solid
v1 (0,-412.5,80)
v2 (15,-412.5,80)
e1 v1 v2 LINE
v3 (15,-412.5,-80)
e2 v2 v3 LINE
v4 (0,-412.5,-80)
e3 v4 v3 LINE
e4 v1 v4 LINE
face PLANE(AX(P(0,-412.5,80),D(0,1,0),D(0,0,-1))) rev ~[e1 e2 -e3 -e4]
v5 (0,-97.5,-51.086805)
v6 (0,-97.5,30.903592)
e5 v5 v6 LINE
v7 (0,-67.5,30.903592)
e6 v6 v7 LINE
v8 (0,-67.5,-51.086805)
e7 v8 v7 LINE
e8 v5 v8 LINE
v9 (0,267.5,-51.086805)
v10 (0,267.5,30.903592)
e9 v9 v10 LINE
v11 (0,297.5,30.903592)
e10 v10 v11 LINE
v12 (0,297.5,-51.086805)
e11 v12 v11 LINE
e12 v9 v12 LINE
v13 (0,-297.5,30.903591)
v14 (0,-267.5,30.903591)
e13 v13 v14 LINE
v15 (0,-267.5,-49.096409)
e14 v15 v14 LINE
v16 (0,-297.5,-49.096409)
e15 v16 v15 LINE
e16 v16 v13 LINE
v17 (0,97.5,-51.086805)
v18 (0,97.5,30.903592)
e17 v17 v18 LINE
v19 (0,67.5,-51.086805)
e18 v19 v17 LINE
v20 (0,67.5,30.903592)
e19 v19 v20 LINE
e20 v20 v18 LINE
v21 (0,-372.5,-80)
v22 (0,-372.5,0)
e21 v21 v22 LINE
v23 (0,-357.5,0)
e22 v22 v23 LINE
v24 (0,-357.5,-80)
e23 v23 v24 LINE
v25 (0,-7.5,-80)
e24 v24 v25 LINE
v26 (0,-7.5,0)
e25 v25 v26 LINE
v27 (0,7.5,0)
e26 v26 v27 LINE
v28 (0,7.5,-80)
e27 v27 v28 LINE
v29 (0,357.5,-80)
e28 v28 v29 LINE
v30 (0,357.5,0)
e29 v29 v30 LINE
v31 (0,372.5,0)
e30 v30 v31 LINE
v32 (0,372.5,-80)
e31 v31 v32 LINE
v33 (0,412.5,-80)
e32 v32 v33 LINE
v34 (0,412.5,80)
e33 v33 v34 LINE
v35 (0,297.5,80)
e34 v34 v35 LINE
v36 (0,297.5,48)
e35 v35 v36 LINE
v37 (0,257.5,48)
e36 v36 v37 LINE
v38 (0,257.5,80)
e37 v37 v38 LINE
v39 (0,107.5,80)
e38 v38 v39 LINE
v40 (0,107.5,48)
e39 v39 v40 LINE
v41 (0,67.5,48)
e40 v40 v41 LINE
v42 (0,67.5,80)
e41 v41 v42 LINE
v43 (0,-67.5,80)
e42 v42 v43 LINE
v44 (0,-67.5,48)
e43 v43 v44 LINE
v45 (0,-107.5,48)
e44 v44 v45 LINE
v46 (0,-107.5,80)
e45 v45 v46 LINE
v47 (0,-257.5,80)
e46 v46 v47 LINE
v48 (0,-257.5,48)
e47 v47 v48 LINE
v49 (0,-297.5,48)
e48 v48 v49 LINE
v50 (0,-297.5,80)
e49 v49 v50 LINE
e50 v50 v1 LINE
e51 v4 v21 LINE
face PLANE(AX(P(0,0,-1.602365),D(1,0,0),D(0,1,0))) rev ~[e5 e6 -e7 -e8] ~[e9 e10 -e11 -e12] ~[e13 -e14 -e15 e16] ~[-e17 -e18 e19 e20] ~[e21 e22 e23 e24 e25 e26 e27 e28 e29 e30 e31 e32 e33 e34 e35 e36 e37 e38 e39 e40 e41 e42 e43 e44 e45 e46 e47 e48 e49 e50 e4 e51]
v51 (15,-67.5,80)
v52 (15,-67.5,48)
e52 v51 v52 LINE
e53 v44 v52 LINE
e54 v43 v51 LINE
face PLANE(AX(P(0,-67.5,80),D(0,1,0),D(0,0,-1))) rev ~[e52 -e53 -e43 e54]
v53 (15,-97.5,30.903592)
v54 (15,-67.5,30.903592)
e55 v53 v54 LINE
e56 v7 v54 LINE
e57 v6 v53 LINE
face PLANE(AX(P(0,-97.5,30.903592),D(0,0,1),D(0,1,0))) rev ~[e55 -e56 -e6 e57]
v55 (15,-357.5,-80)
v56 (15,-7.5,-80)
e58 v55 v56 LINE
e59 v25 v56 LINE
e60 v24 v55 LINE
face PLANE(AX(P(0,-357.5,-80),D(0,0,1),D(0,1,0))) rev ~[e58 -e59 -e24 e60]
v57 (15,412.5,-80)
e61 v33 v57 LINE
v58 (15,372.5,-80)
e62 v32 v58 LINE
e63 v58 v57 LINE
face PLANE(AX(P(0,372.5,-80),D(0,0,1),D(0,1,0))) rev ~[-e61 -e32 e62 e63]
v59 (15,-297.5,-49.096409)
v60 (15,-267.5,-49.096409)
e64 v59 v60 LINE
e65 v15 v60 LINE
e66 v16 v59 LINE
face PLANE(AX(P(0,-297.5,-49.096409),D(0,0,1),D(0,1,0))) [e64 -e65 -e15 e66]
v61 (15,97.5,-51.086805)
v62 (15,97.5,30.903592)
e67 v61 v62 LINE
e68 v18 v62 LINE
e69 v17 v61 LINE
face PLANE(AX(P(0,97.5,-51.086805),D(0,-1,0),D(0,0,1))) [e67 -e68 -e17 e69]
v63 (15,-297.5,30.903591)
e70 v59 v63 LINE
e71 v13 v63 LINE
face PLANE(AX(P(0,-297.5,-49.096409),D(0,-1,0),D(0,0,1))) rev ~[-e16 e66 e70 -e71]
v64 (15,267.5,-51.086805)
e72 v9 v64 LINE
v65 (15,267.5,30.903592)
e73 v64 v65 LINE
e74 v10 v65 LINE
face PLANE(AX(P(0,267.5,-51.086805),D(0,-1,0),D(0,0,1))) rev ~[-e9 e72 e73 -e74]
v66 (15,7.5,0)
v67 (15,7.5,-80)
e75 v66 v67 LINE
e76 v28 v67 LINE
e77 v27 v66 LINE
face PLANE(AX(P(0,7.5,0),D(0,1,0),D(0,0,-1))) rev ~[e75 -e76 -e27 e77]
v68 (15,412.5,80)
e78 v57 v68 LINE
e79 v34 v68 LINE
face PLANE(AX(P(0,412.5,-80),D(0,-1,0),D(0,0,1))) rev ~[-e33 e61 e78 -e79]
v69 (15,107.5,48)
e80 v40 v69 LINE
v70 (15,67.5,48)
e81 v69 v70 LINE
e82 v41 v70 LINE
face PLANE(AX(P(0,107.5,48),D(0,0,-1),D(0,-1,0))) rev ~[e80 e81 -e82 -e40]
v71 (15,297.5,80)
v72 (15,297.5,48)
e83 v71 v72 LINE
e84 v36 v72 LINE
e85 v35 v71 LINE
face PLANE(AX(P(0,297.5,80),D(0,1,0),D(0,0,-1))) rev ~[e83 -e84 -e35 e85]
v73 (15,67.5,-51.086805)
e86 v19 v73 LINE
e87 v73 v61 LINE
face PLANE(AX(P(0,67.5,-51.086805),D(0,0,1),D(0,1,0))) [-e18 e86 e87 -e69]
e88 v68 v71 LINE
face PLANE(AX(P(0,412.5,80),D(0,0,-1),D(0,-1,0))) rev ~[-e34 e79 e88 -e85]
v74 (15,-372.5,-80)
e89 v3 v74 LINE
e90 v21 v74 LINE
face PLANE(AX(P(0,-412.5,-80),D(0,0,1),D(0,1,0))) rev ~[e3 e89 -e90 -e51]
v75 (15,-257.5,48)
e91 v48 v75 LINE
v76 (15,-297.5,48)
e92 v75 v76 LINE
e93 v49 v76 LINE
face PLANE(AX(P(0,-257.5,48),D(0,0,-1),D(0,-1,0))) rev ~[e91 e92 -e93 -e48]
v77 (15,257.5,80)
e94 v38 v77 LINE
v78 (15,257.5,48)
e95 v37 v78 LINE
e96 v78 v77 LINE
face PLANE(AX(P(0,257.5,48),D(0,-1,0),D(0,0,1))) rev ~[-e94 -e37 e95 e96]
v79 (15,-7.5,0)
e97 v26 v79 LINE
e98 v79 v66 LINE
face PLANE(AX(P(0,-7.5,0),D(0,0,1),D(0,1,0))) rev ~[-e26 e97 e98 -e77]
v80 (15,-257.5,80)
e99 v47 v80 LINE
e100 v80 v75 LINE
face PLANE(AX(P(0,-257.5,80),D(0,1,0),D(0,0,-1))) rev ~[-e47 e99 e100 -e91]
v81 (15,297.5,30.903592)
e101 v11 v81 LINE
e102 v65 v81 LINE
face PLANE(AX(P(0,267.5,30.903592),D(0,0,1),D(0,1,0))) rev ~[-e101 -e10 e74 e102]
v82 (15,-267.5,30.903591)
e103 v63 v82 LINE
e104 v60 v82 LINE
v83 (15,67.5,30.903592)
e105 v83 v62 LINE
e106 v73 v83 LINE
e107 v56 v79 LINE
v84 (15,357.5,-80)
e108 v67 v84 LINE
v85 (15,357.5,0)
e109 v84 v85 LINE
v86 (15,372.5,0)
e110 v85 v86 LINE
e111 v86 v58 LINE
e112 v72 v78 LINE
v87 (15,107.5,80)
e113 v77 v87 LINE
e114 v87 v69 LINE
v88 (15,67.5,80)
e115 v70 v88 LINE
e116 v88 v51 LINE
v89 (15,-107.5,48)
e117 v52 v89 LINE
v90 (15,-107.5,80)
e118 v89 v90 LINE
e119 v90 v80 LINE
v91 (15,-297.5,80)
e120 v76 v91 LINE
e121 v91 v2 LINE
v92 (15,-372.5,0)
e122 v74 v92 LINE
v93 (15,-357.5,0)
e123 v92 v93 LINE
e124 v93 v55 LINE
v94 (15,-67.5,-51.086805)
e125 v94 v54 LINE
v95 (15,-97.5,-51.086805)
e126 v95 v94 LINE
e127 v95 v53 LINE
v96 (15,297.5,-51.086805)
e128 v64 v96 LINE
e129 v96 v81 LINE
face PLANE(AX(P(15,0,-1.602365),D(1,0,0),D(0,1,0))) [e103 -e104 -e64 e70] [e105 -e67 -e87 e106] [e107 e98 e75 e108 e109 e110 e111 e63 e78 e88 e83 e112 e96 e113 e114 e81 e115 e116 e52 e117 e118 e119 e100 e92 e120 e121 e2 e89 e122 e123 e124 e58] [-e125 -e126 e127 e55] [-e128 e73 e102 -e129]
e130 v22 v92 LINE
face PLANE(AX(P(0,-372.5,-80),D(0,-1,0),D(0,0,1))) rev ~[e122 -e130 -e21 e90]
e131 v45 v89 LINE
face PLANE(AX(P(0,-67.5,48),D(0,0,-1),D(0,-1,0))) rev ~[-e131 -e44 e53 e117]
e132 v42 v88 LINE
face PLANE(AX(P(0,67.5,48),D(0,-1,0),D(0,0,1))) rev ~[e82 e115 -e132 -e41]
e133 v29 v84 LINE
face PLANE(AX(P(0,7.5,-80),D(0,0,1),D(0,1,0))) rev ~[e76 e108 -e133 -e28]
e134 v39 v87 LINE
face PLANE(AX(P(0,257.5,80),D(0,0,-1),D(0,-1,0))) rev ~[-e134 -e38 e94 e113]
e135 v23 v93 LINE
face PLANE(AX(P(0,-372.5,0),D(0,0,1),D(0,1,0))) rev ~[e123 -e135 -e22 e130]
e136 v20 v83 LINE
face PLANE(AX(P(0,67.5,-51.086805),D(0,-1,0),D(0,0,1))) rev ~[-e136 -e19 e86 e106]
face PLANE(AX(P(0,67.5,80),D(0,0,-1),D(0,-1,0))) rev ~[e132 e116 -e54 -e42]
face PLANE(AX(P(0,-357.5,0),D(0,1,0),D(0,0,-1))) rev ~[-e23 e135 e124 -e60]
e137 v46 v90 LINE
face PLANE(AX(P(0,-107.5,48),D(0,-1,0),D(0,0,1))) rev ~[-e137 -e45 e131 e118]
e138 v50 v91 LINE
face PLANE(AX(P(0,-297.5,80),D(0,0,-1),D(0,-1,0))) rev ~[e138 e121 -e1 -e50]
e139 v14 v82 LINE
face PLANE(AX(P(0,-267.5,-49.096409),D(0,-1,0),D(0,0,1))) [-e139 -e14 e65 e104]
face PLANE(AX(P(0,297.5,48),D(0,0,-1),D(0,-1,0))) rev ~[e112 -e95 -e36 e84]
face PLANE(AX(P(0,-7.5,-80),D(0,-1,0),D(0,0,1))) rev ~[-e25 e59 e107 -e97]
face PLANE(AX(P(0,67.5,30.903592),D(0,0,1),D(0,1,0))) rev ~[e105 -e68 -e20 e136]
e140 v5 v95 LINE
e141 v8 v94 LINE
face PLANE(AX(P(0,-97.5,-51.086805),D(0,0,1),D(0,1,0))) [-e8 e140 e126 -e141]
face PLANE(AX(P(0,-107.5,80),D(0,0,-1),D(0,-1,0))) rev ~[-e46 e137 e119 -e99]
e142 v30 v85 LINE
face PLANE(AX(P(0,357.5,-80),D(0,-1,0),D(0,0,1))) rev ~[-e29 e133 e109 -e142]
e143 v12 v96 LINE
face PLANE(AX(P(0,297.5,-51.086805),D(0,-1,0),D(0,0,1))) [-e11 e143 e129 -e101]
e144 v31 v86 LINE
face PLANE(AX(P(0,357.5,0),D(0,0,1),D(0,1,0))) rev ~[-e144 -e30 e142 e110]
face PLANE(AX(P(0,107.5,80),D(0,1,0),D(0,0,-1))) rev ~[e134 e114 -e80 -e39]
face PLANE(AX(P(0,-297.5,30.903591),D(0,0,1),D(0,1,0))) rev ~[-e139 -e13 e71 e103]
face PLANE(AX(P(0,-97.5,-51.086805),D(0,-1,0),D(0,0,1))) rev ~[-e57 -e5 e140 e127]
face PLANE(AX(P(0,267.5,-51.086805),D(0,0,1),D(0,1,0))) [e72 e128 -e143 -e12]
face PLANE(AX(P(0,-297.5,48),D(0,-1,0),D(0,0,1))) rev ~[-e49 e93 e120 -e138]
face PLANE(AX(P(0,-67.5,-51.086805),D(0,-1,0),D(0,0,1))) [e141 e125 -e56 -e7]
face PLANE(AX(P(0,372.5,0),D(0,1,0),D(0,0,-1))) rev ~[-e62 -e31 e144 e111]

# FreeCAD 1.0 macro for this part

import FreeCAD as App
import Part
import Sketcher
Q = App.Units.Quantity

doc = App.newDocument("Part")
body = doc.addObject("PartDesign::Body", "Body")

# Sketch on YZ plane
sketch1 = body.newObject("Sketcher::SketchObject", "Sketch")
sketch1.AttachmentSupport = (doc.getObject("YZ_Plane"), [""])
sketch1.MapMode = "FlatFace"
sketch1.addGeometry([
    Part.LineSegment(App.Vector(-298, 80, 0), App.Vector(-412, 80, 0)),  # 0
    Part.LineSegment(App.Vector(-412, 80, 0), App.Vector(-412, -80, 0)),  # 1
    Part.LineSegment(App.Vector(-412, -80, 0), App.Vector(-372, -80, 0)),  # 2
    Part.LineSegment(App.Vector(-372, -80, 0), App.Vector(-372, 0, 0)),  # 3
    Part.LineSegment(App.Vector(-372, 0, 0), App.Vector(-358, 0, 0)),  # 4
    Part.LineSegment(App.Vector(-358, 0, 0), App.Vector(-358, -80, 0)),  # 5
    Part.LineSegment(App.Vector(-358, -80, 0), App.Vector(-8, -80, 0)),  # 6
    Part.LineSegment(App.Vector(-8, -80, 0), App.Vector(-8, 0, 0)),  # 7
    Part.LineSegment(App.Vector(-8, 0, 0), App.Vector(8, 0, 0)),  # 8
    Part.LineSegment(App.Vector(8, 0, 0), App.Vector(8, -80, 0)),  # 9
    Part.LineSegment(App.Vector(8, -80, 0), App.Vector(358, -80, 0)),  # 10
    Part.LineSegment(App.Vector(358, -80, 0), App.Vector(358, 0, 0)),  # 11
    Part.LineSegment(App.Vector(358, 0, 0), App.Vector(372, 0, 0)),  # 12
    Part.LineSegment(App.Vector(372, 0, 0), App.Vector(372, -80, 0)),  # 13
    Part.LineSegment(App.Vector(372, -80, 0), App.Vector(412, -80, 0)),  # 14
    Part.LineSegment(App.Vector(412, -80, 0), App.Vector(412, 80, 0)),  # 15
    Part.LineSegment(App.Vector(412, 80, 0), App.Vector(298, 80, 0)),  # 16
    Part.LineSegment(App.Vector(298, 80, 0), App.Vector(298, 48, 0)),  # 17
    Part.LineSegment(App.Vector(298, 48, 0), App.Vector(258, 48, 0)),  # 18
    Part.LineSegment(App.Vector(258, 48, 0), App.Vector(258, 80, 0)),  # 19
    Part.LineSegment(App.Vector(258, 80, 0), App.Vector(108, 80, 0)),  # 20
    Part.LineSegment(App.Vector(108, 80, 0), App.Vector(108, 48, 0)),  # 21
    Part.LineSegment(App.Vector(108, 48, 0), App.Vector(68, 48, 0)),  # 22
    Part.LineSegment(App.Vector(68, 48, 0), App.Vector(68, 80, 0)),  # 23
    Part.LineSegment(App.Vector(68, 80, 0), App.Vector(-68, 80, 0)),  # 24
    Part.LineSegment(App.Vector(-68, 80, 0), App.Vector(-68, 48, 0)),  # 25
    Part.LineSegment(App.Vector(-68, 48, 0), App.Vector(-108, 48, 0)),  # 26
    Part.LineSegment(App.Vector(-108, 48, 0), App.Vector(-108, 80, 0)),  # 27
    Part.LineSegment(App.Vector(-108, 80, 0), App.Vector(-258, 80, 0)),  # 28
    Part.LineSegment(App.Vector(-258, 80, 0), App.Vector(-258, 48, 0)),  # 29
    Part.LineSegment(App.Vector(-258, 48, 0), App.Vector(-298, 48, 0)),  # 30
    Part.LineSegment(App.Vector(-298, 48, 0), App.Vector(-298, 80, 0)),  # 31
    Part.LineSegment(App.Vector(-268, -49, 0), App.Vector(-298, -49, 0)),  # 32
    Part.LineSegment(App.Vector(-298, -49, 0), App.Vector(-298, 31, 0)),  # 33
    Part.LineSegment(App.Vector(-298, 31, 0), App.Vector(-268, 31, 0)),  # 34
    Part.LineSegment(App.Vector(-268, 31, 0), App.Vector(-268, -49, 0)),  # 35
    Part.LineSegment(App.Vector(-68, -51, 0), App.Vector(-98, -51, 0)),  # 36
    Part.LineSegment(App.Vector(-98, -51, 0), App.Vector(-98, 31, 0)),  # 37
    Part.LineSegment(App.Vector(-98, 31, 0), App.Vector(-68, 31, 0)),  # 38
    Part.LineSegment(App.Vector(-68, 31, 0), App.Vector(-68, -51, 0)),  # 39
    Part.LineSegment(App.Vector(98, -51, 0), App.Vector(68, -51, 0)),  # 40
    Part.LineSegment(App.Vector(68, -51, 0), App.Vector(68, 31, 0)),  # 41
    Part.LineSegment(App.Vector(68, 31, 0), App.Vector(98, 31, 0)),  # 42
    Part.LineSegment(App.Vector(98, 31, 0), App.Vector(98, -51, 0)),  # 43
    Part.LineSegment(App.Vector(298, -51, 0), App.Vector(268, -51, 0)),  # 44
    Part.LineSegment(App.Vector(268, -51, 0), App.Vector(268, 31, 0)),  # 45
    Part.LineSegment(App.Vector(268, 31, 0), App.Vector(298, 31, 0)),  # 46
    Part.LineSegment(App.Vector(298, 31, 0), App.Vector(298, -51, 0)),  # 47
], False)
sketch1.addConstraint([
    Sketcher.Constraint("Coincident", 0, 2, 1, 1),
    Sketcher.Constraint("Coincident", 1, 2, 2, 1),
    Sketcher.Constraint("Coincident", 2, 2, 3, 1),
    Sketcher.Constraint("Coincident", 3, 2, 4, 1),
    Sketcher.Constraint("Coincident", 4, 2, 5, 1),
    Sketcher.Constraint("Coincident", 5, 2, 6, 1),
    Sketcher.Constraint("Coincident", 6, 2, 7, 1),
    Sketcher.Constraint("Coincident", 7, 2, 8, 1),
    Sketcher.Constraint("Coincident", 8, 2, 9, 1),
    Sketcher.Constraint("Coincident", 9, 2, 10, 1),
    Sketcher.Constraint("Coincident", 10, 2, 11, 1),
    Sketcher.Constraint("Coincident", 11, 2, 12, 1),
    Sketcher.Constraint("Coincident", 12, 2, 13, 1),
    Sketcher.Constraint("Coincident", 13, 2, 14, 1),
    Sketcher.Constraint("Coincident", 14, 2, 15, 1),
    Sketcher.Constraint("Coincident", 15, 2, 16, 1),
    Sketcher.Constraint("Coincident", 16, 2, 17, 1),
    Sketcher.Constraint("Coincident", 17, 2, 18, 1),
    Sketcher.Constraint("Coincident", 18, 2, 19, 1),
    Sketcher.Constraint("Coincident", 19, 2, 20, 1),
    Sketcher.Constraint("Coincident", 20, 2, 21, 1),
    Sketcher.Constraint("Coincident", 21, 2, 22, 1),
    Sketcher.Constraint("Coincident", 22, 2, 23, 1),
    Sketcher.Constraint("Coincident", 23, 2, 24, 1),
    Sketcher.Constraint("Coincident", 24, 2, 25, 1),
    Sketcher.Constraint("Coincident", 25, 2, 26, 1),
    Sketcher.Constraint("Coincident", 26, 2, 27, 1),
    Sketcher.Constraint("Coincident", 27, 2, 28, 1),
    Sketcher.Constraint("Coincident", 28, 2, 29, 1),
    Sketcher.Constraint("Coincident", 29, 2, 30, 1),
    Sketcher.Constraint("Coincident", 30, 2, 31, 1),
    Sketcher.Constraint("Coincident", 31, 2, 0, 1),
    Sketcher.Constraint("Coincident", 32, 2, 33, 1),
    Sketcher.Constraint("Coincident", 33, 2, 34, 1),
    Sketcher.Constraint("Coincident", 34, 2, 35, 1),
    Sketcher.Constraint("Coincident", 35, 2, 32, 1),
    Sketcher.Constraint("Coincident", 36, 2, 37, 1),
    Sketcher.Constraint("Coincident", 37, 2, 38, 1),
    Sketcher.Constraint("Coincident", 38, 2, 39, 1),
    Sketcher.Constraint("Coincident", 39, 2, 36, 1),
    Sketcher.Constraint("Coincident", 40, 2, 41, 1),
    Sketcher.Constraint("Coincident", 41, 2, 42, 1),
    Sketcher.Constraint("Coincident", 42, 2, 43, 1),
    Sketcher.Constraint("Coincident", 43, 2, 40, 1),
    Sketcher.Constraint("Coincident", 44, 2, 45, 1),
    Sketcher.Constraint("Coincident", 45, 2, 46, 1),
    Sketcher.Constraint("Coincident", 46, 2, 47, 1),
    Sketcher.Constraint("Coincident", 47, 2, 44, 1),
    Sketcher.Constraint("Horizontal", 0),
    Sketcher.Constraint("Vertical", 1),
    Sketcher.Constraint("Horizontal", 2),
    Sketcher.Constraint("Vertical", 3),
    Sketcher.Constraint("Horizontal", 4),
    Sketcher.Constraint("Vertical", 5),
    Sketcher.Constraint("Horizontal", 6),
    Sketcher.Constraint("Vertical", 7),
    Sketcher.Constraint("Horizontal", 8),
    Sketcher.Constraint("Vertical", 9),
    Sketcher.Constraint("Horizontal", 10),
    Sketcher.Constraint("Vertical", 11),
    Sketcher.Constraint("Horizontal", 12),
    Sketcher.Constraint("Vertical", 13),
    Sketcher.Constraint("Horizontal", 14),
    Sketcher.Constraint("Vertical", 15),
    Sketcher.Constraint("Horizontal", 16),
    Sketcher.Constraint("Vertical", 17),
    Sketcher.Constraint("Horizontal", 18),
    Sketcher.Constraint("Vertical", 19),
    Sketcher.Constraint("Horizontal", 20),
    Sketcher.Constraint("Vertical", 21),
    Sketcher.Constraint("Horizontal", 22),
    Sketcher.Constraint("Vertical", 23),
    Sketcher.Constraint("Horizontal", 24),
    Sketcher.Constraint("Vertical", 25),
    Sketcher.Constraint("Horizontal", 26),
    Sketcher.Constraint("Vertical", 27),
    Sketcher.Constraint("Horizontal", 28),
    Sketcher.Constraint("Vertical", 29),
    Sketcher.Constraint("Horizontal", 30),
    Sketcher.Constraint("Vertical", 31),
    Sketcher.Constraint("Horizontal", 32),
    Sketcher.Constraint("Vertical", 33),
    Sketcher.Constraint("Horizontal", 34),
    Sketcher.Constraint("Vertical", 35),
    Sketcher.Constraint("Horizontal", 36),
    Sketcher.Constraint("Vertical", 37),
    Sketcher.Constraint("Horizontal", 38),
    Sketcher.Constraint("Vertical", 39),
    Sketcher.Constraint("Horizontal", 40),
    Sketcher.Constraint("Vertical", 41),
    Sketcher.Constraint("Horizontal", 42),
    Sketcher.Constraint("Vertical", 43),
    Sketcher.Constraint("Horizontal", 44),
    Sketcher.Constraint("Vertical", 45),
    Sketcher.Constraint("Horizontal", 46),
    Sketcher.Constraint("Vertical", 47),
    Sketcher.Constraint("Symmetric", 7, 2, 8, 2, -1, 1),
    Sketcher.Constraint("Symmetric", 4, 2, 11, 2, -1, 1),
    Sketcher.Constraint("Symmetric", 0, 2, 14, 2, -1, 1),
    Sketcher.Constraint("Symmetric", 3, 2, 12, 2, -2),
    Sketcher.Constraint("Symmetric", 22, 2, 25, 2, -2),
    Sketcher.Constraint("Symmetric", 20, 2, 27, 2, -2),
    Sketcher.Constraint("Symmetric", 18, 2, 29, 2, -2),
    Sketcher.Constraint("Symmetric", 16, 2, 31, 2, -2),
    Sketcher.Constraint("Symmetric", 39, 2, 40, 2, -2),
    Sketcher.Constraint("Symmetric", 37, 2, 42, 2, -2),
    Sketcher.Constraint("Symmetric", 34, 2, 45, 2, -2),
    Sketcher.Constraint("Horizontal", 2, 2, 5, 2),
    Sketcher.Constraint("Horizontal", 6, 2, 9, 2),
    Sketcher.Constraint("Horizontal", 10, 2, 13, 2),
    Sketcher.Constraint("Horizontal", 16, 2, 19, 2),
    Sketcher.Constraint("Horizontal", 18, 2, 21, 2),
    Sketcher.Constraint("Horizontal", 20, 2, 23, 2),
    Sketcher.Constraint("Horizontal", 34, 2, 37, 2),
    Sketcher.Constraint("Horizontal", 43, 2, 44, 2),
    Sketcher.Constraint("Vertical", 31, 2, 32, 2),
    Sketcher.Constraint("Vertical", 25, 2, 38, 2),
    Sketcher.Constraint("Vertical", 17, 2, 46, 2),
    Sketcher.Constraint("Equal", 4, 8),
    Sketcher.Constraint("Equal", 14, 18),
    Sketcher.Constraint("Equal", 18, 22),
    Sketcher.Constraint("Equal", 34, 36),
    Sketcher.Constraint("Equal", 13, 33),
    Sketcher.Constraint("DistanceX", 0, 2, 0, 1, Q("115 mm")),
    Sketcher.Constraint("DistanceX", 2, 1, 2, 2, Q("40 mm")),
    Sketcher.Constraint("DistanceX", 4, 1, 4, 2, Q("15 mm")),
    Sketcher.Constraint("DistanceX", 6, 1, 6, 2, Q("350 mm")),
    Sketcher.Constraint("DistanceX", 20, 2, 20, 1, Q("150 mm")),
    Sketcher.Constraint("DistanceX", 32, 2, 32, 1, Q("30 mm")),
    Sketcher.Constraint("DistanceY", 1, 2, 1, 1, Q("160 mm")),
    Sketcher.Constraint("DistanceY", 17, 2, 17, 1, Q("32 mm")),
    Sketcher.Constraint("DistanceY", 37, 1, 37, 2, Q("81.990397 mm")),
    Sketcher.Constraint("DistanceY", 32, 2, -1, 1, Q("49.096409 mm")),
])
pad1 = body.newObject("PartDesign::Pad", "Pad")
pad1.Profile = sketch1
pad1.Length = 15

doc.recompute()
